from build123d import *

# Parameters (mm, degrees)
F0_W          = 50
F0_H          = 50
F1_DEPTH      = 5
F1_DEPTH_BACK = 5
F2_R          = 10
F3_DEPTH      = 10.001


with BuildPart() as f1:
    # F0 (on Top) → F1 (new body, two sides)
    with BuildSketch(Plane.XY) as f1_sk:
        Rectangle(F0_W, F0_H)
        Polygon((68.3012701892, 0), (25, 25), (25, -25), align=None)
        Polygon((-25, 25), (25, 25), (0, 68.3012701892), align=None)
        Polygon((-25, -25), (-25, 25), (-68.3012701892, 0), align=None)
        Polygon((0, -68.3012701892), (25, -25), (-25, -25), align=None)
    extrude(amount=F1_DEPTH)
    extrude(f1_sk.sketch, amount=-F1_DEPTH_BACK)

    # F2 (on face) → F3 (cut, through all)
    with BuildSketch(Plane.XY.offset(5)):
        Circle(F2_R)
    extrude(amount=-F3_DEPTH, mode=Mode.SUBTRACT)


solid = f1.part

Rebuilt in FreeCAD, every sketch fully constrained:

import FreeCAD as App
import Part
import Sketcher
from FreeCAD import Vector
Q = App.Units.Quantity

doc = App.newDocument("Part")
body = doc.addObject("PartDesign::Body", "Body")

# Sketch on XY plane
sketch1 = body.newObject("Sketcher::SketchObject", "Sketch")
sketch1.AttachmentSupport = (doc.getObject("XY_Plane"), [""])
sketch1.MapMode = "FlatFace"
sketch1.addGeometry([
    Part.LineSegment(Vector(25, -25, 0), Vector(68.30127, 0, 0)),  # 0
    Part.LineSegment(Vector(68.30127, 0, 0), Vector(25, 25, 0)),  # 1
    Part.LineSegment(Vector(25, 25, 0), Vector(0, 68.30127, 0)),  # 2
    Part.LineSegment(Vector(0, 68.30127, 0), Vector(-25, 25, 0)),  # 3
    Part.LineSegment(Vector(-25, 25, 0), Vector(-68.30127, 0, 0)),  # 4
    Part.LineSegment(Vector(-68.30127, 0, 0), Vector(-25, -25, 0)),  # 5
    Part.LineSegment(Vector(-25, -25, 0), Vector(0, -68.30127, 0)),  # 6
    Part.LineSegment(Vector(0, -68.30127, 0), Vector(25, -25, 0)),  # 7
], False)
sketch1.addConstraint([
    Sketcher.Constraint("Coincident", 0, 2, 1, 1),
    Sketcher.Constraint("Coincident", 1, 2, 2, 1),
    Sketcher.Constraint("Coincident", 2, 2, 3, 1),
    Sketcher.Constraint("Coincident", 3, 2, 4, 1),
    Sketcher.Constraint("Coincident", 4, 2, 5, 1),
    Sketcher.Constraint("Coincident", 5, 2, 6, 1),
    Sketcher.Constraint("Coincident", 6, 2, 7, 1),
    Sketcher.Constraint("Coincident", 7, 2, 0, 1),
    Sketcher.Constraint("Symmetric", 0, 2, 4, 2, -1, 1),
    Sketcher.Constraint("Symmetric", 1, 2, 5, 2, -1, 1),
    Sketcher.Constraint("Symmetric", 2, 2, 6, 2, -1, 1),
    Sketcher.Constraint("Symmetric", 3, 2, 7, 2, -1, 1),
    Sketcher.Constraint("Symmetric", 1, 2, 3, 2, -2),
    Sketcher.Constraint("PointOnObject", 0, 2, -1),
    Sketcher.Constraint("PointOnObject", 2, 2, -2),
    Sketcher.Constraint("Perpendicular", 0, 2),
    Sketcher.Constraint("Equal", 1, 2),
    Sketcher.Constraint("Angle", 0, Q("30 deg")),
    Sketcher.Constraint("Distance", 0, Q("50 mm")),
])
pad1 = body.newObject("PartDesign::Pad", "Pad")
pad1.Profile = sketch1
pad1.Type = "TwoLengths"
pad1.Length = 5
pad1.Length2 = 5

# Sketch on XY plane
sketch2 = body.newObject("Sketcher::SketchObject", "Sketch001")
sketch2.AttachmentSupport = (doc.getObject("XY_Plane"), [""])
sketch2.MapMode = "FlatFace"
sketch2.AttachmentOffset = App.Placement(Vector(0, 0, 5), App.Rotation())
sketch2.addGeometry(Part.Circle(Vector(0, 0, 0), Vector(0, 0, 1), 10), False)
sketch2.addConstraint([
    Sketcher.Constraint("Coincident", 0, 3, -1, 1),
    Sketcher.Constraint("Diameter", 0, Q("20 mm")),
])
pocket1 = body.newObject("PartDesign::Pocket", "Pocket")
pocket1.Profile = sketch2
pocket1.Type = "ThroughAll"

doc.recompute()
